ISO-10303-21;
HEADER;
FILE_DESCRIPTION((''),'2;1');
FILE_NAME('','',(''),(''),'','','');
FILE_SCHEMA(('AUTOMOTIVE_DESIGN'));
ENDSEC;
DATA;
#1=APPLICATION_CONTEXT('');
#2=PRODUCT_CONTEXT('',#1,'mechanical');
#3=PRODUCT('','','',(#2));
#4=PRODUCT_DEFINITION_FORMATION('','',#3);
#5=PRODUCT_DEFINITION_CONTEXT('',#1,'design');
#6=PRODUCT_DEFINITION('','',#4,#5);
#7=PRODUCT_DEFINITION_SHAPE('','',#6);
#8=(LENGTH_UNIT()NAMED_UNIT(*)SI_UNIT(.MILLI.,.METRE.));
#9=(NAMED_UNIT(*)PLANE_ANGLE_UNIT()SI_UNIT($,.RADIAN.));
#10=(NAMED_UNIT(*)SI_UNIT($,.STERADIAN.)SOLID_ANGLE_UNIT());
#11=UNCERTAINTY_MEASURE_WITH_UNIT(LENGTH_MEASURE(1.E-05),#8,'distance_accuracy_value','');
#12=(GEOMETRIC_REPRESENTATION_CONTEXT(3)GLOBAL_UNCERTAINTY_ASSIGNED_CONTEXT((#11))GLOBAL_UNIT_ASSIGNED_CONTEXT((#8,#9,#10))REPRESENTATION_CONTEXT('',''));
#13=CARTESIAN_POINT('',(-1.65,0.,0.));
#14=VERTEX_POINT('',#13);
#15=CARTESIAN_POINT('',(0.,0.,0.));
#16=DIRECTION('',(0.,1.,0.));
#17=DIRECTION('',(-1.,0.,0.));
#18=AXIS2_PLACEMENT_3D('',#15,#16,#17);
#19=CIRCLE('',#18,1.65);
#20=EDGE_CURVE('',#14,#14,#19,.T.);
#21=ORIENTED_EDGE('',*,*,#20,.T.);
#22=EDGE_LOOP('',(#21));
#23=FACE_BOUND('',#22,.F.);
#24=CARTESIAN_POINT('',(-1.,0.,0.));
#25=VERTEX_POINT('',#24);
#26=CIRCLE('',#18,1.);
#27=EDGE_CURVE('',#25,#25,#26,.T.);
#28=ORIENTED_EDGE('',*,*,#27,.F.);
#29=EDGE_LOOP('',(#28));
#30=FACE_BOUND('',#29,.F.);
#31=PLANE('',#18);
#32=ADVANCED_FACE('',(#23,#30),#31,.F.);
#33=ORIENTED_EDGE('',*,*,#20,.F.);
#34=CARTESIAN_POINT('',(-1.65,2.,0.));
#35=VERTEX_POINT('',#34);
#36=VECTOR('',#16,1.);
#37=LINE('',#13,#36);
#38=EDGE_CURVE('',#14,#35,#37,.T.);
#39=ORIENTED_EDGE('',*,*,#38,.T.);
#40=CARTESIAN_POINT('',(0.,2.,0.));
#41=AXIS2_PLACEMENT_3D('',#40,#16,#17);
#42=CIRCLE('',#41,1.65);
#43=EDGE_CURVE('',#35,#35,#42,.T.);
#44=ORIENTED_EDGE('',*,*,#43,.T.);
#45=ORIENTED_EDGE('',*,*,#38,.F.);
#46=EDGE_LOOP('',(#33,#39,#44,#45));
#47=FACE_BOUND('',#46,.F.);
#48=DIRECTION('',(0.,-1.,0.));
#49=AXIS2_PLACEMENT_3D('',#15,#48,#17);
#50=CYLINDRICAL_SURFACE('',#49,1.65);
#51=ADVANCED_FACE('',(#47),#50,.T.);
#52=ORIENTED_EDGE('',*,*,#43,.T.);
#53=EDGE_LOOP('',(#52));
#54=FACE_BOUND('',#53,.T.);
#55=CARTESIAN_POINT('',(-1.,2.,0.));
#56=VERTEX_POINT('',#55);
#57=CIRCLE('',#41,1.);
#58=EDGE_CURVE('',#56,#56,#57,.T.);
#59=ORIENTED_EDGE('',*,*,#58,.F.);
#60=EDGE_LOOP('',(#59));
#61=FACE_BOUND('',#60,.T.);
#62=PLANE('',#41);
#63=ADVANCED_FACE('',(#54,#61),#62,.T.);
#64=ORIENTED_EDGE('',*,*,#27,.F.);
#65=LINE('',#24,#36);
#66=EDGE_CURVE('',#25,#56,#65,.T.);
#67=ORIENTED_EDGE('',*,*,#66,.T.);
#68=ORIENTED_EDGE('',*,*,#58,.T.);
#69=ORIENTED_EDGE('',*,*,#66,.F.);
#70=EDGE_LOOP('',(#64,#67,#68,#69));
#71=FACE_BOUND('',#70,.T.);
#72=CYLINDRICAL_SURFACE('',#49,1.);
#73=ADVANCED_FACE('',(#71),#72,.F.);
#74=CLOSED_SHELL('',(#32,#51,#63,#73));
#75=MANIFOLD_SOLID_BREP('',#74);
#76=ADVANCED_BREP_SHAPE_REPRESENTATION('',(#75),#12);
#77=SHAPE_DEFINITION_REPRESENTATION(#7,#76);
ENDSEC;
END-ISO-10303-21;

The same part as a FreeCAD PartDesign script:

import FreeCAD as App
import Part
import Sketcher
from FreeCAD import Vector

doc = App.newDocument("Part")
body = doc.addObject("PartDesign::Body", "Body")

sketch1 = doc.addObject("Sketcher::SketchObject", "Sketch")
body.addObject(sketch1)
sketch1.AttachmentSupport = (doc.XZ_Plane, [""])
sketch1.MapMode = "FlatFace"
sketch1.addGeometry([
    Part.Circle(Vector(0, 0, 0), Vector(0, 0, 1), 1.6),
    Part.Circle(Vector(0, 0, 0), Vector(0, 0, 1), 1),
], False)
sketch1.addConstraint([
    Sketcher.Constraint("Coincident", 0, 3, -1, 1),
    Sketcher.Constraint("Coincident", 1, 3, -1, 1),
    Sketcher.Constraint("Diameter", 1, 2.0),
    Sketcher.Constraint("Diameter", 0, 3.3),
])
pad1 = doc.addObject("PartDesign::Pad", "Pad")
body.addObject(pad1)
pad1.Profile = sketch1
pad1.Length = 2
pad1.Reversed = True

doc.recompute()
